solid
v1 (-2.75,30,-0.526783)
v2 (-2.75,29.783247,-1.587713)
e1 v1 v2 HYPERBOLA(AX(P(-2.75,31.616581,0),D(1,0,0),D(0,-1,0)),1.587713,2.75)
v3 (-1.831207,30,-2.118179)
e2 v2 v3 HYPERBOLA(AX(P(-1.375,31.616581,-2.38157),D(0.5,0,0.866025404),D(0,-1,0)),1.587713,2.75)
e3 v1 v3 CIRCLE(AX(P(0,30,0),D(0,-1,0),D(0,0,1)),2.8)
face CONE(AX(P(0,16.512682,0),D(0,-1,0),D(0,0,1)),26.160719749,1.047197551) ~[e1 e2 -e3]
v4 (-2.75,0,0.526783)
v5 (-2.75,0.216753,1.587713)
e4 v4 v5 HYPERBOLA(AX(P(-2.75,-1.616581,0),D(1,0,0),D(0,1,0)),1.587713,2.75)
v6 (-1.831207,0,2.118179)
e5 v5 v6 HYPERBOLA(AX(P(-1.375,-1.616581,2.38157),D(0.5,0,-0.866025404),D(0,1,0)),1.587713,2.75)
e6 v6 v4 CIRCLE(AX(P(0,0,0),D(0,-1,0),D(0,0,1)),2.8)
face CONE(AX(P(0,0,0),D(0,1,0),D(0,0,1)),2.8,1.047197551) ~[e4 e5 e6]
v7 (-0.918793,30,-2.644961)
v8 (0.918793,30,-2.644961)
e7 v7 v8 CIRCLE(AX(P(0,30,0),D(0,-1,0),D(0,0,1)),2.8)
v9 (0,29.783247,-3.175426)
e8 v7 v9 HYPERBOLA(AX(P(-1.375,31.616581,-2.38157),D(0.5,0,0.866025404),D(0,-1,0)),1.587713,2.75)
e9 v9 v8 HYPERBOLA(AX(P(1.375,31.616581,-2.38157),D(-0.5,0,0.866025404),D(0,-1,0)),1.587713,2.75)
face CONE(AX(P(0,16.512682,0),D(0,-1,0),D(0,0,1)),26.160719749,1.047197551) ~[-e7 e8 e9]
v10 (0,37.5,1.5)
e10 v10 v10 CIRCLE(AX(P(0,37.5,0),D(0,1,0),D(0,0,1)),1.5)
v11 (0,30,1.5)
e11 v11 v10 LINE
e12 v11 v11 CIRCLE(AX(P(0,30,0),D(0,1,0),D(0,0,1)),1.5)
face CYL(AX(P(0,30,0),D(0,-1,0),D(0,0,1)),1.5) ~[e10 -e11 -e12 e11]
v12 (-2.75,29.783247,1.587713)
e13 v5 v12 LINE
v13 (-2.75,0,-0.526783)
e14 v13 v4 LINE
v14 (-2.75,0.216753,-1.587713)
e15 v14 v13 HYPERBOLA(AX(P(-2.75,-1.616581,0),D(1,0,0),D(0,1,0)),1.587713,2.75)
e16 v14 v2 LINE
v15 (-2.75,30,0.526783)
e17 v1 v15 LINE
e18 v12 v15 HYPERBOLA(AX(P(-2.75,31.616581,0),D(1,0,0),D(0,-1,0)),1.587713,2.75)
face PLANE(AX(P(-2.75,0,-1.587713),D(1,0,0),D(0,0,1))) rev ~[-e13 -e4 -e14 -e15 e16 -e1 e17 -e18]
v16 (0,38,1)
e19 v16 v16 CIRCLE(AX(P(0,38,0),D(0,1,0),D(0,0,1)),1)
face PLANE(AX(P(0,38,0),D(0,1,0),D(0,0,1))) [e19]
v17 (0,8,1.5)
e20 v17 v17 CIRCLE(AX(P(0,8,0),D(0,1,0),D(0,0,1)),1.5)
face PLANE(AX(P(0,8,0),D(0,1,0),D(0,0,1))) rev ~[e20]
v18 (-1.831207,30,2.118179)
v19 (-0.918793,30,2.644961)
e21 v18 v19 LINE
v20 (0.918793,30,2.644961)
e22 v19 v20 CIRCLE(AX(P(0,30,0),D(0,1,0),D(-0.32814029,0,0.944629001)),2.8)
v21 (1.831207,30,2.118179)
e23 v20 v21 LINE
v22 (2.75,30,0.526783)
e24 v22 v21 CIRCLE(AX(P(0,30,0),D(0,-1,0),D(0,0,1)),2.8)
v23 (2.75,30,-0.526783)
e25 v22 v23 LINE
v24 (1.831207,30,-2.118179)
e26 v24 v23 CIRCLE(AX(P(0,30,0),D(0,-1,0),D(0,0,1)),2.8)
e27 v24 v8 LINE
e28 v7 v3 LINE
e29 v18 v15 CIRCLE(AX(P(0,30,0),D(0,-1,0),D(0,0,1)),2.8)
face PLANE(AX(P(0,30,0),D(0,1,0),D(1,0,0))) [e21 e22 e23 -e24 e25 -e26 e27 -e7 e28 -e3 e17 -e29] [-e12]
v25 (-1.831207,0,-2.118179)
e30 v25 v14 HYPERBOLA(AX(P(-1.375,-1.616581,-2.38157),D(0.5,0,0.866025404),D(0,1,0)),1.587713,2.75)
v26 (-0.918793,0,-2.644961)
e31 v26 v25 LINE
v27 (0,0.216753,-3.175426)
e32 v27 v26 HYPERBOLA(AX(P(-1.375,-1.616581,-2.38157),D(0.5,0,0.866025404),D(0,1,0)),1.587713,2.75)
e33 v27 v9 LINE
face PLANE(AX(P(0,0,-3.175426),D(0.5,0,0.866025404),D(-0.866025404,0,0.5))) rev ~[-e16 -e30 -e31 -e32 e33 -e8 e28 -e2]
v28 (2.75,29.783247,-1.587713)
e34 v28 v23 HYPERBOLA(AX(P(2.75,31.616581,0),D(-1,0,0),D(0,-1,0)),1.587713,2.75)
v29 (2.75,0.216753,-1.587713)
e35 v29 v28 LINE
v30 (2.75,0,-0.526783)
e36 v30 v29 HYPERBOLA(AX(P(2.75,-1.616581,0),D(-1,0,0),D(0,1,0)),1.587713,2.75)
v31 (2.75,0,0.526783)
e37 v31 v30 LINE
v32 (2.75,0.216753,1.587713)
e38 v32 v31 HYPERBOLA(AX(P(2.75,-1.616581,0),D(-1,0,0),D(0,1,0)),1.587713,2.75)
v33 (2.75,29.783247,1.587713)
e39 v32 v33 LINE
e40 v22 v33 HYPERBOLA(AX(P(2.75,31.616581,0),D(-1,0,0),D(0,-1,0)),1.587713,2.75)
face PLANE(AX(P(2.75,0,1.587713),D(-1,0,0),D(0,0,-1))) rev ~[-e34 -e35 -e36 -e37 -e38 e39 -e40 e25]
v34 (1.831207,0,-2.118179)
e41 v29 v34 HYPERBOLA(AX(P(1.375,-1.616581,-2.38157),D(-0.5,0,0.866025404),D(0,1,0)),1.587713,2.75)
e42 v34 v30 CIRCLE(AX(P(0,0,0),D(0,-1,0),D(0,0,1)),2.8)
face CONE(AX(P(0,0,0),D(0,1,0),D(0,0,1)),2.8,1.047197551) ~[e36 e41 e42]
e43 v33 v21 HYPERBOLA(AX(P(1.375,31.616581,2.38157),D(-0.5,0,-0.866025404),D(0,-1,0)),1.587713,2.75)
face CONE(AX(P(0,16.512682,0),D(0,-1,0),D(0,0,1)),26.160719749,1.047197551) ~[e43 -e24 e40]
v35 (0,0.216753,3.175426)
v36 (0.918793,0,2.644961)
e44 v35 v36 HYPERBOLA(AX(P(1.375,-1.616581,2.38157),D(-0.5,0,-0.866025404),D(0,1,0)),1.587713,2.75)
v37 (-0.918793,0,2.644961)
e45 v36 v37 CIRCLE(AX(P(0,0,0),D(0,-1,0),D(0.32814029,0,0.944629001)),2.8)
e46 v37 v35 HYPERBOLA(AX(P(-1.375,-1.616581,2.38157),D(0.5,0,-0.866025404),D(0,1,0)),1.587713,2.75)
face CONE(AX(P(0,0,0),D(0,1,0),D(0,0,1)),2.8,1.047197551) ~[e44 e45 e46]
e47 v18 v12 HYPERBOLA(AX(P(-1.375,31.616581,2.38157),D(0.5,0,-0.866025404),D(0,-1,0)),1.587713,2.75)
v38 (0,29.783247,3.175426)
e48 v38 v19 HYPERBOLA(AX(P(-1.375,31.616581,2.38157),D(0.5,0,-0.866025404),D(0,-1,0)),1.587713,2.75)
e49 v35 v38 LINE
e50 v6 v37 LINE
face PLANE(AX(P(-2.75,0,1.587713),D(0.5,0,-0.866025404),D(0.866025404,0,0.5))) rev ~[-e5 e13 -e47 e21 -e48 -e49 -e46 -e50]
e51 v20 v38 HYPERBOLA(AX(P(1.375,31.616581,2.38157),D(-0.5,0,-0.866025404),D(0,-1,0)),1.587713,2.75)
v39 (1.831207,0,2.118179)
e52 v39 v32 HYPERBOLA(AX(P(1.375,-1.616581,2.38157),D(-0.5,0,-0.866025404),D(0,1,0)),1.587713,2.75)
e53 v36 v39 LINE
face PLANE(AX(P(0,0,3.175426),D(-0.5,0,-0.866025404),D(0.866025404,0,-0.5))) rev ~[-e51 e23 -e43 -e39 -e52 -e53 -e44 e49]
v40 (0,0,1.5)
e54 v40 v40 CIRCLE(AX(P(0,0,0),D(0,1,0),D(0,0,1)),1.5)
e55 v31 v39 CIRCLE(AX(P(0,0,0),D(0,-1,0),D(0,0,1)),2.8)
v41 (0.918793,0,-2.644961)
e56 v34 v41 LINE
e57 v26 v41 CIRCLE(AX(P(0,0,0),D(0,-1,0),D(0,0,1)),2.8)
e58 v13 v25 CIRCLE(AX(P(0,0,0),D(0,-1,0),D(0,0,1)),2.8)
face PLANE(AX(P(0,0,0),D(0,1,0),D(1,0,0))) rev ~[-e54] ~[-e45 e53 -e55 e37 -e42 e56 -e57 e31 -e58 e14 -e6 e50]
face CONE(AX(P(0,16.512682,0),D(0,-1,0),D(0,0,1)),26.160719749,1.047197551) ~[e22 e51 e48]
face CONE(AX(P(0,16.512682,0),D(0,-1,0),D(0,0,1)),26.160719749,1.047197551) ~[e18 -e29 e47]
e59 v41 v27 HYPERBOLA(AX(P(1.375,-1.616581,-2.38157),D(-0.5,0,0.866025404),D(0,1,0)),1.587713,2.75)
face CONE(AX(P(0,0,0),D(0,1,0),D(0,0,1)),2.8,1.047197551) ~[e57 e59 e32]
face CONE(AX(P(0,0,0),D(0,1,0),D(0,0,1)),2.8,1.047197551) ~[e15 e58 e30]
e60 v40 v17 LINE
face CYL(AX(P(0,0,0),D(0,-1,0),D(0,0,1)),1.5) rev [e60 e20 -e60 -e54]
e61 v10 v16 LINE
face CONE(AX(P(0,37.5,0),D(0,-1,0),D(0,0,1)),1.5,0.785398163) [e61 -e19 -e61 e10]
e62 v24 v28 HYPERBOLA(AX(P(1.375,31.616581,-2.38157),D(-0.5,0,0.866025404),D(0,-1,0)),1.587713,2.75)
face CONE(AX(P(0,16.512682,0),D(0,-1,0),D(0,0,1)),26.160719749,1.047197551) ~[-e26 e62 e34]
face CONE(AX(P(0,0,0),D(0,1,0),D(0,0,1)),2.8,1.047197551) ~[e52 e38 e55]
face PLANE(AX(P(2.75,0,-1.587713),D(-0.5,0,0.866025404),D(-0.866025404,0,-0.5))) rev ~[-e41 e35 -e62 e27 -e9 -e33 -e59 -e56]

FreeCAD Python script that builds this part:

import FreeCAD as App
import Part
import Sketcher

V = App.Vector
Q = App.Units.Quantity


def edges_at(feature, points):
    """Names of the edges that pass closest to the given points."""
    edges = feature.Shape.Edges
    near = lambda p: min(range(len(edges)), key=lambda i: edges[i].distToShape(Part.Vertex(*p))[0])
    return sorted({f"Edge{near(p) + 1}" for p in points})


def add_polygon(sketch, points):
    """Adds a closed chain of lines whose ends are joined by coincident constraints."""
    first, n = sketch.GeometryCount, len(points)
    for a, b in zip(points, points[1:] + points[:1]):
        sketch.addGeometry(Part.LineSegment(App.Vector(*a, 0), App.Vector(*b, 0)), False)
    for i in range(n):
        sketch.addConstraint(Sketcher.Constraint("Coincident", first + i, 2, first + (i + 1) % n, 1))

doc = App.newDocument("Part")
params = doc.addObject("Spreadsheet::Sheet", "Params")
for row, (alias, value) in enumerate([
    ("pad1_length", "30 mm"),
    ("groove_angle", "360 deg"),
    ("sketch3_diameter", "3 mm"),
    ("pad2_length", "8 mm"),
    ("chamfer_size", "0.5 mm"),
    ("sketch4_diameter", "3 mm"),
    ("pocket1_length", "8 mm"),
], start=1):
    params.set(f"A{row}", alias)
    params.set(f"B{row}", "=" + value)
    params.setAlias(f"B{row}", alias)

body = doc.addObject("PartDesign::Body", "Body")

sketch1 = doc.addObject("Sketcher::SketchObject", "Sketch")
body.addObject(sketch1)
sketch1.AttachmentSupport = (doc.XZ_Plane, [""])
sketch1.MapMode = "FlatFace"
add_polygon(sketch1, [(2.8, 1.6), (2.8, -1.6), (0, -3.2), (-2.8, -1.6), (-2.8, 1.6), (0, 3.2)])
sketch1.addConstraint([
    Sketcher.Constraint("Vertical", 0),
    Sketcher.Constraint("Vertical", 3),
    Sketcher.Constraint("Symmetric", 0, 2, 3, 2, -1, 1),
    Sketcher.Constraint("Symmetric", 1, 2, 4, 2, -1, 1),
    Sketcher.Constraint("PointOnObject", 1, 2, -2),
    Sketcher.Constraint("Parallel", 2, 5),
    Sketcher.Constraint("Horizontal", 0, 2, 2, 2),
    Sketcher.Constraint("Angle", 1, Q("-150 deg")),
    Sketcher.Constraint("DistanceX", 2, 2, 0, 2, Q("5.5 mm")),
    Sketcher.Constraint("DistanceY", 0, 2, 0, 1, Q("3.175426 mm")),
])
pad1 = doc.addObject("PartDesign::Pad", "Pad")
body.addObject(pad1)
pad1.Profile = sketch1
pad1.setExpression("Length", "Params.pad1_length")
pad1.Reversed = True

sketch2 = doc.addObject("Sketcher::SketchObject", "Sketch001")
body.addObject(sketch2)
sketch2.AttachmentSupport = (doc.YZ_Plane, [""])
sketch2.MapMode = "FlatFace"
add_polygon(sketch2, [(13, 26), (0, 26), (0, 3)])
add_polygon(sketch2, [(30, 26), (17, 26), (30, 3)])
sketch2.addConstraint([
    Sketcher.Constraint("Horizontal", 0),
    Sketcher.Constraint("Vertical", 1),
    Sketcher.Constraint("Horizontal", 3),
    Sketcher.Constraint("Vertical", 5),
    Sketcher.Constraint("PointOnObject", 0, 2, -2),
    Sketcher.Constraint("Horizontal", 2, 2, 3, 2),
    Sketcher.Constraint("Horizontal", 1, 2, 4, 2),
    Sketcher.Constraint("Equal", 0, 3),
    Sketcher.Constraint("Angle", 2, Q("60 deg")),
    Sketcher.Constraint("DistanceX", -1, 1, 4, 2, Q("30 mm")),
    Sketcher.Constraint("DistanceY", -1, 1, 1, 2, Q("2.8 mm")),
    Sketcher.Constraint("DistanceY", 1, 2, 1, 1, Q("23.36072 mm")),
])
groove = doc.addObject("PartDesign::Groove", "Groove")
body.addObject(groove)
groove.Profile = sketch2
groove.ReferenceAxis = (sketch2, ["H_Axis"])
groove.setExpression("Angle", "Params.groove_angle")

sketch3 = doc.addObject("Sketcher::SketchObject", "Sketch002")
body.addObject(sketch3)
sketch3.AttachmentSupport = (doc.XZ_Plane, [""])
sketch3.MapMode = "FlatFace"
sketch3.AttachmentOffset = App.Placement(V(0, 0, -30), App.Rotation())
sketch3.addGeometry(Part.Circle(V(0, 0, 0), V(0, 0, 1), 1.5), False)
sketch3.addConstraint([
    Sketcher.Constraint("Coincident", 0, 3, -1, 1),
    Sketcher.Constraint("Diameter", 0, Q("3 mm")),
])
sketch3.setExpression("Constraints[1]", "Params.sketch3_diameter")
pad2 = doc.addObject("PartDesign::Pad", "Pad001")
body.addObject(pad2)
pad2.Profile = sketch3
pad2.setExpression("Length", "Params.pad2_length")
pad2.Reversed = True
doc.recompute()

chamfer = doc.addObject("PartDesign::Chamfer", "Chamfer")
body.addObject(chamfer)
chamfer.Base = (pad2, edges_at(pad2, [(0, 38, -1.5)]))
chamfer.setExpression("Size", "Params.chamfer_size")

sketch4 = doc.addObject("Sketcher::SketchObject", "Sketch003")
body.addObject(sketch4)
sketch4.AttachmentSupport = (doc.XZ_Plane, [""])
sketch4.MapMode = "FlatFace"
sketch4.addGeometry(Part.Circle(V(0, 0, 0), V(0, 0, 1), 1.5), False)
sketch4.addConstraint([
    Sketcher.Constraint("Coincident", 0, 3, -1, 1),
    Sketcher.Constraint("Diameter", 0, Q("3 mm")),
])
sketch4.setExpression("Constraints[1]", "Params.sketch4_diameter")
pocket1 = doc.addObject("PartDesign::Pocket", "Pocket")
body.addObject(pocket1)
pocket1.Profile = sketch4
pocket1.setExpression("Length", "Params.pocket1_length")

doc.recompute()
